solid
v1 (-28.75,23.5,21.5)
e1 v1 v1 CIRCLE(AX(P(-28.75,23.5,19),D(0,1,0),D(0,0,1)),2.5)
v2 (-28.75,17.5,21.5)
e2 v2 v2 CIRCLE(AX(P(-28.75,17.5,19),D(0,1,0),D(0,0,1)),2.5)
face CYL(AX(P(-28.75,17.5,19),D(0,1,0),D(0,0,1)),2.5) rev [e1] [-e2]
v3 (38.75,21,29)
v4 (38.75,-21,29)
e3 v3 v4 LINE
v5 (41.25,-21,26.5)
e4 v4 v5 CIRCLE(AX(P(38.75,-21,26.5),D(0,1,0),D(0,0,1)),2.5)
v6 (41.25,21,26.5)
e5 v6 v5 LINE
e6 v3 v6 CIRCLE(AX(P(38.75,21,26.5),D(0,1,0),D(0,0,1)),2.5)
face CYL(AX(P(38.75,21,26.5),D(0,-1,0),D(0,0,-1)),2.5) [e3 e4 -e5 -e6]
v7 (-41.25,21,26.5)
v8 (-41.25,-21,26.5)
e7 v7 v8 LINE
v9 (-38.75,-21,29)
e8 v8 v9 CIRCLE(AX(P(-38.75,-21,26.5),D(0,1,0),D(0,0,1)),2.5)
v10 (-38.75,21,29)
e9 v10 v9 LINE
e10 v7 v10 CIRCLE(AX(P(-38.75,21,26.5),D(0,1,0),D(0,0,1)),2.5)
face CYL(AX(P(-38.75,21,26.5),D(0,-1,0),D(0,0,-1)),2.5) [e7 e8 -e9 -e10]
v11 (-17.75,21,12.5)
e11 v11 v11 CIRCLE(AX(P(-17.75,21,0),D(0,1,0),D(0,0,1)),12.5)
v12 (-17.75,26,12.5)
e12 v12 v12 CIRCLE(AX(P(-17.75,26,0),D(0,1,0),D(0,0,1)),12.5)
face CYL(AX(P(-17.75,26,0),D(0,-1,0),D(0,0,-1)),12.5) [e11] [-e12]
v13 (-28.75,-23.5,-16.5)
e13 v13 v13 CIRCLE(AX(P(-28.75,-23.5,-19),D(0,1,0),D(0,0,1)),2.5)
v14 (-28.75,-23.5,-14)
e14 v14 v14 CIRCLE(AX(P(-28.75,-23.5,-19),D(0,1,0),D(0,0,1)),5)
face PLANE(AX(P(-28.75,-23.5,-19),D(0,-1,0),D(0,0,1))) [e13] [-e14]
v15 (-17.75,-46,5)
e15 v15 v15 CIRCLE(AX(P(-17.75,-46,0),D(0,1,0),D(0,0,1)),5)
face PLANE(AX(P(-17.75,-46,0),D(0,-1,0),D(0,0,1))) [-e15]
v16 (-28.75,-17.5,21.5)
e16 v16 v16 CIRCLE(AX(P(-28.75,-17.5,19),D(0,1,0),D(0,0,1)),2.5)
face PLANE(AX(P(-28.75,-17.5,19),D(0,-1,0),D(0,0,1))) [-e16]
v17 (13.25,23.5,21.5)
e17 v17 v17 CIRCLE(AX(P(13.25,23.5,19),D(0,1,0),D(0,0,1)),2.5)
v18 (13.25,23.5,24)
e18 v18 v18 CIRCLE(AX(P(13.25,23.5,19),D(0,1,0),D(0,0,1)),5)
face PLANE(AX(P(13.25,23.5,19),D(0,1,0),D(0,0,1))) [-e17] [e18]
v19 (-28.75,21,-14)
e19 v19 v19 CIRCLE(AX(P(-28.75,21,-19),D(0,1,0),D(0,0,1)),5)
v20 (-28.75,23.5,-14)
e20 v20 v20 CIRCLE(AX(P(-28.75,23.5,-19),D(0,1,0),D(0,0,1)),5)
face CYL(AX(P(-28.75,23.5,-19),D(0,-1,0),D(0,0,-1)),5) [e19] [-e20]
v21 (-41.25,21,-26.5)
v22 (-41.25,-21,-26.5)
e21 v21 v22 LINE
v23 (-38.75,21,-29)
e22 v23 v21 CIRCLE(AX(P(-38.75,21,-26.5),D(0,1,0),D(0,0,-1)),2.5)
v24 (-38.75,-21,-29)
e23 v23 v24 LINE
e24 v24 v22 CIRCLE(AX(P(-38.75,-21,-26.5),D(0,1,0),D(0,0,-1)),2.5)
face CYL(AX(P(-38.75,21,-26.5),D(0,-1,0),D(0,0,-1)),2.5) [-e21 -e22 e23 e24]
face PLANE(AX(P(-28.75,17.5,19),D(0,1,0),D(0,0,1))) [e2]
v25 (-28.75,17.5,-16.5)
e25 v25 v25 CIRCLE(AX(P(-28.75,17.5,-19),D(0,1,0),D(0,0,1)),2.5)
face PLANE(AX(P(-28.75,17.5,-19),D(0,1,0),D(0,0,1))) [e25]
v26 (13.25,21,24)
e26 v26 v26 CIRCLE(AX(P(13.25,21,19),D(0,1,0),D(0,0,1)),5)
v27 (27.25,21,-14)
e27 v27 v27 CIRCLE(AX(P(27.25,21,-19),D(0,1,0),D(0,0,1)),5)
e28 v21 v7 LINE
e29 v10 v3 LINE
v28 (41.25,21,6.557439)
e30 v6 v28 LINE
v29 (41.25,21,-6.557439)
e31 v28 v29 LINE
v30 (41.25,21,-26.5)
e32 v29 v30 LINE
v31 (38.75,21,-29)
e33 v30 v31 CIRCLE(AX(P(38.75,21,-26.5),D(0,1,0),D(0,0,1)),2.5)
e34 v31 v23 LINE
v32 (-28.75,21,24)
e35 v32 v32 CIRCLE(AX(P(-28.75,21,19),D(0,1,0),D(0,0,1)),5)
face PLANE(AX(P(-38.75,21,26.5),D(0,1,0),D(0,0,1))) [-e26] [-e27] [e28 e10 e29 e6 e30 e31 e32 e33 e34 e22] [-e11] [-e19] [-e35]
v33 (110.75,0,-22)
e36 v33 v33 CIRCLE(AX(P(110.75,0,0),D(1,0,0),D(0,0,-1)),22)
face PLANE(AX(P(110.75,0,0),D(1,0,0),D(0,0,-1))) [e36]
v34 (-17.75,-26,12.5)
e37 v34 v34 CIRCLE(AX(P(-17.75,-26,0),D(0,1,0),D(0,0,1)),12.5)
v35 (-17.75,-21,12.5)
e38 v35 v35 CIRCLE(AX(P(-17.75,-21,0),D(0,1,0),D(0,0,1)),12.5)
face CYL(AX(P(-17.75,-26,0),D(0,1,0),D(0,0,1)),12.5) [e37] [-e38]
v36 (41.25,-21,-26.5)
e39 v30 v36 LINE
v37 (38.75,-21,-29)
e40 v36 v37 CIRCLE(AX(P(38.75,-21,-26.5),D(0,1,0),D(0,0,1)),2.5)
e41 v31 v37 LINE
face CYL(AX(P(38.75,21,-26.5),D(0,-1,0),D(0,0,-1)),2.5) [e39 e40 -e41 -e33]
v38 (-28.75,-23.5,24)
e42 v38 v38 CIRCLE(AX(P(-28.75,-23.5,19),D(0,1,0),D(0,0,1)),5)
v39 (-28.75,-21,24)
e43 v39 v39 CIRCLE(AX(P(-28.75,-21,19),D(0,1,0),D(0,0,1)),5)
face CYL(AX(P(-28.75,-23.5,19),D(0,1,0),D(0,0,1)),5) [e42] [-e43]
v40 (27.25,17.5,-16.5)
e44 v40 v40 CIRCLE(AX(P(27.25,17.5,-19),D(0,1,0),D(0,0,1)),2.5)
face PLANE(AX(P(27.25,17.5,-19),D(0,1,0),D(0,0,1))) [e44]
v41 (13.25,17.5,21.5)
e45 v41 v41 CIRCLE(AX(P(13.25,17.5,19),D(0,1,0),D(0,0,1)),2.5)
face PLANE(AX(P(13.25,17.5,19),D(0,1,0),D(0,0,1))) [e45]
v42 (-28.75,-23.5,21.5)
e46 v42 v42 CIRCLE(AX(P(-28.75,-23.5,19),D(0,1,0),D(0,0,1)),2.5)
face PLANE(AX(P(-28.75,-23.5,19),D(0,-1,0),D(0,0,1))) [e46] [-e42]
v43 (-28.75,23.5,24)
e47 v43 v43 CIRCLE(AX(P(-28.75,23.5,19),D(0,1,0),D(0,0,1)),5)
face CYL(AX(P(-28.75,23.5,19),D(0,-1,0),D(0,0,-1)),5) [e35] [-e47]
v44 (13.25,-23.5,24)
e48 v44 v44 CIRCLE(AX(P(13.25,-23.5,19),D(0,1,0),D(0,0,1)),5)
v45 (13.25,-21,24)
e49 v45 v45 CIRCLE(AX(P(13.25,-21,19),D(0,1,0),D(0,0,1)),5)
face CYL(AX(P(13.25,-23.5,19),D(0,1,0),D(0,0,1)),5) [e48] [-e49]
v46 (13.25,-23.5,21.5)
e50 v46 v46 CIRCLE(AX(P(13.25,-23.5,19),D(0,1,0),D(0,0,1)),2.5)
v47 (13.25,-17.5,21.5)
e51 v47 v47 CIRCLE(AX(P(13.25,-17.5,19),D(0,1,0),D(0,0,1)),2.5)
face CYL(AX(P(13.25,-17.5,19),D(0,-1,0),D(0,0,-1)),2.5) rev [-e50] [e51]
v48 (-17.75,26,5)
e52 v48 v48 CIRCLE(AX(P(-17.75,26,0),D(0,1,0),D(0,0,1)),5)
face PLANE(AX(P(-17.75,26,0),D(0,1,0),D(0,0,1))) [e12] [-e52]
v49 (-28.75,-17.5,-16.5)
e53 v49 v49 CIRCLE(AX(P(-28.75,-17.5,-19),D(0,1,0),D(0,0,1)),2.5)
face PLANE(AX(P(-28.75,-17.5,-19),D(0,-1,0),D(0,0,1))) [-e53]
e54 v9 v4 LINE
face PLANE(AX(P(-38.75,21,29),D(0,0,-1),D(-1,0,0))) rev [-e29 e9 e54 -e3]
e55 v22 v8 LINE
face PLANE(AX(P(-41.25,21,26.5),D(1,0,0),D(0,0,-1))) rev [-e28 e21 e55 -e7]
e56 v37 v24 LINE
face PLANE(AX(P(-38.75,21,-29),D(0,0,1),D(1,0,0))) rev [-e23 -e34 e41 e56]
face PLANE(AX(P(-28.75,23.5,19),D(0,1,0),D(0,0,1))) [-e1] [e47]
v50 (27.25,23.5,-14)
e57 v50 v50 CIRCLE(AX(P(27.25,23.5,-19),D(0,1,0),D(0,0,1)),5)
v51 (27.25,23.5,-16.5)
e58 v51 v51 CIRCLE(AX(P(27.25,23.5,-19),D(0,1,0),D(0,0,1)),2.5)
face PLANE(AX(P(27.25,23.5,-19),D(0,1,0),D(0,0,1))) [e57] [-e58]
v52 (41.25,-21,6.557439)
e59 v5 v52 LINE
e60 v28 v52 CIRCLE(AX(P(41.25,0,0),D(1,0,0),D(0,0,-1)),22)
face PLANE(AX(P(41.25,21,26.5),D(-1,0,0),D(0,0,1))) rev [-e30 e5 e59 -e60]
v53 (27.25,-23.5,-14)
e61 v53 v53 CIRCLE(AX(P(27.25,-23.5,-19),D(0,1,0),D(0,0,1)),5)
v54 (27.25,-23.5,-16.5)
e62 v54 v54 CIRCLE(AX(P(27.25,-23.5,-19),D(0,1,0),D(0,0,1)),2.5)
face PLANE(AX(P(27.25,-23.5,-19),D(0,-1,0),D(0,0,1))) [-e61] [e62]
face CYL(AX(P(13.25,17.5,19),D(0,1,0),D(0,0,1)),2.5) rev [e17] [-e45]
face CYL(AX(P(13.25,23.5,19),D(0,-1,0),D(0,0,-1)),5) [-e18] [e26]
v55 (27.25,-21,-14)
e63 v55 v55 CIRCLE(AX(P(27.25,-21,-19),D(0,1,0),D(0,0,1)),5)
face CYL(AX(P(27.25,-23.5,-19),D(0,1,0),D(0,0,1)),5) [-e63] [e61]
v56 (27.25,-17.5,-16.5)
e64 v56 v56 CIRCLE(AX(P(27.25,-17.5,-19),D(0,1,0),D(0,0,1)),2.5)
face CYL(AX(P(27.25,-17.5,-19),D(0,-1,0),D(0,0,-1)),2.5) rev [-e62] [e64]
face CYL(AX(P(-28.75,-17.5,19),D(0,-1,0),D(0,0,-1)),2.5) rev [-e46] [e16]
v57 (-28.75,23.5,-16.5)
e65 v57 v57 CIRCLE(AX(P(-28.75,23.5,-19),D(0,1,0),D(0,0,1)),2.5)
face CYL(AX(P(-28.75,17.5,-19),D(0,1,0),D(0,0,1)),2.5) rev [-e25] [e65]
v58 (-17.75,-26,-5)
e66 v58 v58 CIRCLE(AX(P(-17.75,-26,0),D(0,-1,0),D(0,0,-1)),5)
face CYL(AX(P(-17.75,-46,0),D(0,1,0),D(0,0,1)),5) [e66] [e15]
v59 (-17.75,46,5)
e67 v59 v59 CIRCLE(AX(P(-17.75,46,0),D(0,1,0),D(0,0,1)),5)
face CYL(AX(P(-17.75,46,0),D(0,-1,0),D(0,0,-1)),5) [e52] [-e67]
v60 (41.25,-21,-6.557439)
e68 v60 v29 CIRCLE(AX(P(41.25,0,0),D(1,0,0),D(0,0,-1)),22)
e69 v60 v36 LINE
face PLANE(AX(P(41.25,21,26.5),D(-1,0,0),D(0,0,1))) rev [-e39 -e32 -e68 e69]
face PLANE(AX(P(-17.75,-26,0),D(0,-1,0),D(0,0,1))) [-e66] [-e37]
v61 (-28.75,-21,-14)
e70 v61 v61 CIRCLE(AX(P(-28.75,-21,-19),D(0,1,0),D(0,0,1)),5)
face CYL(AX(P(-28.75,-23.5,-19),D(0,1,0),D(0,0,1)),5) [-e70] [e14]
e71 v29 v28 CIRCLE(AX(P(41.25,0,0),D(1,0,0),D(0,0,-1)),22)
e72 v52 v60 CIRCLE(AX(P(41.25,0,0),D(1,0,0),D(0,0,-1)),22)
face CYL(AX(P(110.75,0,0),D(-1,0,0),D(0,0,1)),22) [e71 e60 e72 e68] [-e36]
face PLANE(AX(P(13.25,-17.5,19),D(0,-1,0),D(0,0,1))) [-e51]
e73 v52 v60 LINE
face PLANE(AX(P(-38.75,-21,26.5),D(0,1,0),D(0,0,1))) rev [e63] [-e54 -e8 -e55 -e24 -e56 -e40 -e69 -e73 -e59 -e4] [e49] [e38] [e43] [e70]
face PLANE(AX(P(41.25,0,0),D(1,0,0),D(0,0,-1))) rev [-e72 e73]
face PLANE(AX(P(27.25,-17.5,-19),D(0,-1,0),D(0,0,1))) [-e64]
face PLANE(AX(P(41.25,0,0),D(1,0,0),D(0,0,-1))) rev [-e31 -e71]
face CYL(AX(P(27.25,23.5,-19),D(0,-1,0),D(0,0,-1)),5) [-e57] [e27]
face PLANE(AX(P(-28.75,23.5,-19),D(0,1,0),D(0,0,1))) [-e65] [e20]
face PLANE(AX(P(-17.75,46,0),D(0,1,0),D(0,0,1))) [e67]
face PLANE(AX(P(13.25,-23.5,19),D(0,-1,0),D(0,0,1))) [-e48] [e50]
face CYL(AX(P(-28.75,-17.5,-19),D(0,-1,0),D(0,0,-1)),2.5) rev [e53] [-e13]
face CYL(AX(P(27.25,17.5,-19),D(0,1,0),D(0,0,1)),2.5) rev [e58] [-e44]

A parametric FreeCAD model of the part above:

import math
import FreeCAD as App
import Part
import Sketcher

V = App.Vector

doc = App.newDocument("Part")
body = doc.addObject("PartDesign::Body", "Body")

sketch1 = doc.addObject("Sketcher::SketchObject", "Sketch")
body.addObject(sketch1)
sketch1.AttachmentSupport = (doc.XZ_Plane, [""])
sketch1.MapMode = "FlatFace"
sketch1.addGeometry([
    Part.LineSegment(V(-38.8, 29, 0), V(38.8, 29, 0)),
    Part.ArcOfCircle(Part.Circle(V(38.8, 26.5, 0), V(0, 0, 1), 2.5), math.radians(0), math.radians(90)),
    Part.LineSegment(V(41.2, 26.5, 0), V(41.2, -26.5, 0)),
    Part.ArcOfCircle(Part.Circle(V(38.8, -26.5, 0), V(0, 0, 1), 2.5), math.radians(-90), math.radians(0)),
    Part.LineSegment(V(38.8, -29, 0), V(-38.8, -29, 0)),
    Part.ArcOfCircle(Part.Circle(V(-38.8, -26.5, 0), V(0, 0, 1), 2.5), math.radians(180), math.radians(270)),
    Part.LineSegment(V(-41.2, -26.5, 0), V(-41.2, 26.5, 0)),
    Part.ArcOfCircle(Part.Circle(V(-38.8, 26.5, 0), V(0, 0, 1), 2.5), math.radians(90), math.radians(180)),
], False)
sketch1.addConstraint([
    Sketcher.Constraint("Tangent", 0, 2, 1, 2),
    Sketcher.Constraint("Tangent", 1, 1, 2, 1),
    Sketcher.Constraint("Tangent", 2, 2, 3, 2),
    Sketcher.Constraint("Tangent", 3, 1, 4, 1),
    Sketcher.Constraint("Tangent", 4, 2, 5, 2),
    Sketcher.Constraint("Tangent", 5, 1, 6, 1),
    Sketcher.Constraint("Tangent", 6, 2, 7, 2),
    Sketcher.Constraint("Tangent", 7, 1, 0, 1),
    Sketcher.Constraint("Horizontal", 0),
    Sketcher.Constraint("Vertical", 2),
    Sketcher.Constraint("Horizontal", 4),
    Sketcher.Constraint("Vertical", 6),
    Sketcher.Constraint("Equal", 1, 3),
    Sketcher.Constraint("Equal", 3, 5),
    Sketcher.Constraint("Equal", 5, 7),
    Sketcher.Constraint("Symmetric", 1, 3, 5, 3, -1, 1),
    Sketcher.Constraint("Radius", 1, 2.5),
    Sketcher.Constraint("DistanceY", 2, 2, 2, 1, 53.0),
    Sketcher.Constraint("DistanceX", 0, 1, 0, 2, 77.5),
])
pad1 = doc.addObject("PartDesign::Pad", "Pad")
body.addObject(pad1)
pad1.Profile = sketch1
pad1.Length = 42
pad1.Midplane = True

sketch2 = doc.addObject("Sketcher::SketchObject", "Sketch001")
body.addObject(sketch2)
sketch2.AttachmentSupport = (doc.XZ_Plane, [""])
sketch2.MapMode = "FlatFace"
sketch2.AttachmentOffset = App.Placement(V(0, 0, -21), App.Rotation())
sketch2.addGeometry([
    Part.Circle(V(-29, -19, 0), V(0, 0, 1), 5),
    Part.Circle(V(-29, 19, 0), V(0, 0, 1), 5),
    Part.Circle(V(13, 19, 0), V(0, 0, 1), 5),
    Part.Circle(V(27, -19, 0), V(0, 0, 1), 5),
], False)
sketch2.addConstraint([
    Sketcher.Constraint("Equal", 0, 1),
    Sketcher.Constraint("Equal", 1, 2),
    Sketcher.Constraint("Equal", 2, 3),
    Sketcher.Constraint("Symmetric", 0, 3, 1, 3, -1),
    Sketcher.Constraint("Horizontal", 1, 3, 2, 3),
    Sketcher.Constraint("Horizontal", 0, 3, 3, 3),
    Sketcher.Constraint("Diameter", 0, 10.0),
    Sketcher.Constraint("DistanceY", 0, 3, -1, 1, 19.0),
    Sketcher.Constraint("DistanceX", 1, 3, 2, 3, 42.0),
    Sketcher.Constraint("DistanceX", 2, 3, 3, 3, 14.0),
    Sketcher.Constraint("DistanceX", 0, 3, -1, 1, 28.75),
])
pad2 = doc.addObject("PartDesign::Pad", "Pad001")
body.addObject(pad2)
pad2.Profile = sketch2
pad2.Length = 2.5
pad2.Reversed = True

sketch3 = doc.addObject("Sketcher::SketchObject", "Sketch002")
body.addObject(sketch3)
sketch3.AttachmentSupport = (doc.XZ_Plane, [""])
sketch3.MapMode = "FlatFace"
sketch3.AttachmentOffset = App.Placement(V(0, 0, -23.5), App.Rotation())
sketch3.addGeometry([
    Part.Circle(V(-28.8, -19, 0), V(0, 0, 1), 2.5),
    Part.Circle(V(27.2, -19, 0), V(0, 0, 1), 2.5),
    Part.Circle(V(13.2, 19, 0), V(0, 0, 1), 2.5),
    Part.Circle(V(-28.8, 19, 0), V(0, 0, 1), 2.5),
], False)
sketch3.addConstraint([
    Sketcher.Constraint("Equal", 0, 1),
    Sketcher.Constraint("Equal", 1, 2),
    Sketcher.Constraint("Equal", 2, 3),
    Sketcher.Constraint("Symmetric", 0, 3, 3, 3, -1),
    Sketcher.Constraint("Horizontal", 0, 3, 1, 3),
    Sketcher.Constraint("Horizontal", 2, 3, 3, 3),
    Sketcher.Constraint("Diameter", 0, 5.0),
    Sketcher.Constraint("DistanceY", 0, 3, -1, 1, 19.0),
    Sketcher.Constraint("DistanceX", 0, 3, 1, 3, 56.0),
    Sketcher.Constraint("DistanceX", 2, 3, 1, 3, 14.0),
    Sketcher.Constraint("DistanceX", 0, 3, -1, 1, 28.75),
])
pocket1 = doc.addObject("PartDesign::Pocket", "Pocket")
body.addObject(pocket1)
pocket1.Profile = sketch3
pocket1.Length = 6
pocket1.Reversed = True

sketch4 = doc.addObject("Sketcher::SketchObject", "Sketch003")
body.addObject(sketch4)
sketch4.AttachmentSupport = (doc.XZ_Plane, [""])
sketch4.MapMode = "FlatFace"
sketch4.AttachmentOffset = App.Placement(V(0, 0, -21), App.Rotation())
sketch4.addGeometry(Part.Circle(V(-18, 0, 0), V(0, 0, 1), 12), False)
sketch4.addConstraint([
    Sketcher.Constraint("PointOnObject", 0, 3, -1),
    Sketcher.Constraint("Diameter", 0, 25.0),
    Sketcher.Constraint("DistanceX", 0, 3, -1, 1, 17.75),
])
pad3 = doc.addObject("PartDesign::Pad", "Pad002")
body.addObject(pad3)
pad3.Profile = sketch4
pad3.Length = 5
pad3.Reversed = True

sketch5 = doc.addObject("Sketcher::SketchObject", "Sketch004")
body.addObject(sketch5)
sketch5.AttachmentSupport = (doc.XZ_Plane, [""])
sketch5.MapMode = "FlatFace"
sketch5.AttachmentOffset = App.Placement(V(0, 0, -26), App.Rotation())
sketch5.addGeometry(Part.Circle(V(-18, 0, 0), V(0, 0, 1), 5), False)
sketch5.addConstraint([
    Sketcher.Constraint("PointOnObject", 0, 3, -1),
    Sketcher.Constraint("Diameter", 0, 10.0),
    Sketcher.Constraint("DistanceX", 0, 3, -1, 1, 17.75),
])
pad4 = doc.addObject("PartDesign::Pad", "Pad003")
body.addObject(pad4)
pad4.Profile = sketch5
pad4.Length = 20
pad4.Reversed = True

sketch6 = doc.addObject("Sketcher::SketchObject", "Sketch005")
body.addObject(sketch6)
sketch6.AttachmentSupport = (doc.YZ_Plane, [""])
sketch6.MapMode = "FlatFace"
sketch6.AttachmentOffset = App.Placement(V(0, 0, 41.25), App.Rotation())
sketch6.addGeometry(Part.Circle(V(0, 0, 0), V(0, 0, 1), 22), False)
sketch6.addConstraint([
    Sketcher.Constraint("Coincident", 0, 3, -1, 1),
    Sketcher.Constraint("Diameter", 0, 44.0),
])
pad5 = doc.addObject("PartDesign::Pad", "Pad004")
body.addObject(pad5)
pad5.Profile = sketch6
pad5.Length = 69.5
doc.recompute()

mirrored = doc.addObject("PartDesign::Mirrored", "Mirrored")
body.addObject(mirrored)
mirrored.Originals = [pad2, pocket1, pad3, pad4]
mirrored.MirrorPlane = (doc.XZ_Plane, [""])
body.Tip = mirrored

doc.recompute()
